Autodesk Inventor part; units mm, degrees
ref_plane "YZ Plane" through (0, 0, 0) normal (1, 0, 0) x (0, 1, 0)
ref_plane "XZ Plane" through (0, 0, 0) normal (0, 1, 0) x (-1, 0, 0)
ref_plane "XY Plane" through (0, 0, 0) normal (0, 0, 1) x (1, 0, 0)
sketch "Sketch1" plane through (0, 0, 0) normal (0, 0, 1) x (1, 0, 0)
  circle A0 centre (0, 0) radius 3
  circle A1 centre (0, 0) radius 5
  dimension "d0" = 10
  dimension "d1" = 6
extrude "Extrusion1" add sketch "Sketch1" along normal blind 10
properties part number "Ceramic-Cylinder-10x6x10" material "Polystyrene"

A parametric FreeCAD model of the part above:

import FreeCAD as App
import Part
import Sketcher
from FreeCAD import Vector
Q = App.Units.Quantity

doc = App.newDocument("Part")
params = doc.addObject("Spreadsheet::Sheet", "Params")
for row, (alias, value) in enumerate([
    ("sketch1_diameter", "10 mm"),
    ("sketch1_diameter2", "6 mm"),
    ("pad1_length", "10 mm"),
], start=1):
    params.set(f"A{row}", alias)
    params.set(f"B{row}", "=" + value)
    params.setAlias(f"B{row}", alias)

body = doc.addObject("PartDesign::Body", "Body")

sketch1 = doc.addObject("Sketcher::SketchObject", "Sketch")
body.addObject(sketch1)
sketch1.AttachmentSupport = (doc.XY_Plane, [""])
sketch1.MapMode = "FlatFace"
sketch1.addGeometry(Part.Circle(Vector(0, 0, 0), Vector(0, 0, 1), 5), False)
sketch1.addGeometry(Part.Circle(Vector(0, 0, 0), Vector(0, 0, 1), 3), False)
sketch1.addConstraint(Sketcher.Constraint("Coincident", 0, 3, -1, 1))
sketch1.addConstraint(Sketcher.Constraint("Coincident", 1, 3, -1, 1))
sketch1.addConstraint(Sketcher.Constraint("Diameter", 0, Q("10 mm")))
sketch1.addConstraint(Sketcher.Constraint("Diameter", 1, Q("6 mm")))
sketch1.setExpression("Constraints[2]", "Params.sketch1_diameter")
sketch1.setExpression("Constraints[3]", "Params.sketch1_diameter2")
pad1 = doc.addObject("PartDesign::Pad", "Pad")
body.addObject(pad1)
pad1.Profile = sketch1
pad1.setExpression("Length", "Params.pad1_length")

doc.recompute()
